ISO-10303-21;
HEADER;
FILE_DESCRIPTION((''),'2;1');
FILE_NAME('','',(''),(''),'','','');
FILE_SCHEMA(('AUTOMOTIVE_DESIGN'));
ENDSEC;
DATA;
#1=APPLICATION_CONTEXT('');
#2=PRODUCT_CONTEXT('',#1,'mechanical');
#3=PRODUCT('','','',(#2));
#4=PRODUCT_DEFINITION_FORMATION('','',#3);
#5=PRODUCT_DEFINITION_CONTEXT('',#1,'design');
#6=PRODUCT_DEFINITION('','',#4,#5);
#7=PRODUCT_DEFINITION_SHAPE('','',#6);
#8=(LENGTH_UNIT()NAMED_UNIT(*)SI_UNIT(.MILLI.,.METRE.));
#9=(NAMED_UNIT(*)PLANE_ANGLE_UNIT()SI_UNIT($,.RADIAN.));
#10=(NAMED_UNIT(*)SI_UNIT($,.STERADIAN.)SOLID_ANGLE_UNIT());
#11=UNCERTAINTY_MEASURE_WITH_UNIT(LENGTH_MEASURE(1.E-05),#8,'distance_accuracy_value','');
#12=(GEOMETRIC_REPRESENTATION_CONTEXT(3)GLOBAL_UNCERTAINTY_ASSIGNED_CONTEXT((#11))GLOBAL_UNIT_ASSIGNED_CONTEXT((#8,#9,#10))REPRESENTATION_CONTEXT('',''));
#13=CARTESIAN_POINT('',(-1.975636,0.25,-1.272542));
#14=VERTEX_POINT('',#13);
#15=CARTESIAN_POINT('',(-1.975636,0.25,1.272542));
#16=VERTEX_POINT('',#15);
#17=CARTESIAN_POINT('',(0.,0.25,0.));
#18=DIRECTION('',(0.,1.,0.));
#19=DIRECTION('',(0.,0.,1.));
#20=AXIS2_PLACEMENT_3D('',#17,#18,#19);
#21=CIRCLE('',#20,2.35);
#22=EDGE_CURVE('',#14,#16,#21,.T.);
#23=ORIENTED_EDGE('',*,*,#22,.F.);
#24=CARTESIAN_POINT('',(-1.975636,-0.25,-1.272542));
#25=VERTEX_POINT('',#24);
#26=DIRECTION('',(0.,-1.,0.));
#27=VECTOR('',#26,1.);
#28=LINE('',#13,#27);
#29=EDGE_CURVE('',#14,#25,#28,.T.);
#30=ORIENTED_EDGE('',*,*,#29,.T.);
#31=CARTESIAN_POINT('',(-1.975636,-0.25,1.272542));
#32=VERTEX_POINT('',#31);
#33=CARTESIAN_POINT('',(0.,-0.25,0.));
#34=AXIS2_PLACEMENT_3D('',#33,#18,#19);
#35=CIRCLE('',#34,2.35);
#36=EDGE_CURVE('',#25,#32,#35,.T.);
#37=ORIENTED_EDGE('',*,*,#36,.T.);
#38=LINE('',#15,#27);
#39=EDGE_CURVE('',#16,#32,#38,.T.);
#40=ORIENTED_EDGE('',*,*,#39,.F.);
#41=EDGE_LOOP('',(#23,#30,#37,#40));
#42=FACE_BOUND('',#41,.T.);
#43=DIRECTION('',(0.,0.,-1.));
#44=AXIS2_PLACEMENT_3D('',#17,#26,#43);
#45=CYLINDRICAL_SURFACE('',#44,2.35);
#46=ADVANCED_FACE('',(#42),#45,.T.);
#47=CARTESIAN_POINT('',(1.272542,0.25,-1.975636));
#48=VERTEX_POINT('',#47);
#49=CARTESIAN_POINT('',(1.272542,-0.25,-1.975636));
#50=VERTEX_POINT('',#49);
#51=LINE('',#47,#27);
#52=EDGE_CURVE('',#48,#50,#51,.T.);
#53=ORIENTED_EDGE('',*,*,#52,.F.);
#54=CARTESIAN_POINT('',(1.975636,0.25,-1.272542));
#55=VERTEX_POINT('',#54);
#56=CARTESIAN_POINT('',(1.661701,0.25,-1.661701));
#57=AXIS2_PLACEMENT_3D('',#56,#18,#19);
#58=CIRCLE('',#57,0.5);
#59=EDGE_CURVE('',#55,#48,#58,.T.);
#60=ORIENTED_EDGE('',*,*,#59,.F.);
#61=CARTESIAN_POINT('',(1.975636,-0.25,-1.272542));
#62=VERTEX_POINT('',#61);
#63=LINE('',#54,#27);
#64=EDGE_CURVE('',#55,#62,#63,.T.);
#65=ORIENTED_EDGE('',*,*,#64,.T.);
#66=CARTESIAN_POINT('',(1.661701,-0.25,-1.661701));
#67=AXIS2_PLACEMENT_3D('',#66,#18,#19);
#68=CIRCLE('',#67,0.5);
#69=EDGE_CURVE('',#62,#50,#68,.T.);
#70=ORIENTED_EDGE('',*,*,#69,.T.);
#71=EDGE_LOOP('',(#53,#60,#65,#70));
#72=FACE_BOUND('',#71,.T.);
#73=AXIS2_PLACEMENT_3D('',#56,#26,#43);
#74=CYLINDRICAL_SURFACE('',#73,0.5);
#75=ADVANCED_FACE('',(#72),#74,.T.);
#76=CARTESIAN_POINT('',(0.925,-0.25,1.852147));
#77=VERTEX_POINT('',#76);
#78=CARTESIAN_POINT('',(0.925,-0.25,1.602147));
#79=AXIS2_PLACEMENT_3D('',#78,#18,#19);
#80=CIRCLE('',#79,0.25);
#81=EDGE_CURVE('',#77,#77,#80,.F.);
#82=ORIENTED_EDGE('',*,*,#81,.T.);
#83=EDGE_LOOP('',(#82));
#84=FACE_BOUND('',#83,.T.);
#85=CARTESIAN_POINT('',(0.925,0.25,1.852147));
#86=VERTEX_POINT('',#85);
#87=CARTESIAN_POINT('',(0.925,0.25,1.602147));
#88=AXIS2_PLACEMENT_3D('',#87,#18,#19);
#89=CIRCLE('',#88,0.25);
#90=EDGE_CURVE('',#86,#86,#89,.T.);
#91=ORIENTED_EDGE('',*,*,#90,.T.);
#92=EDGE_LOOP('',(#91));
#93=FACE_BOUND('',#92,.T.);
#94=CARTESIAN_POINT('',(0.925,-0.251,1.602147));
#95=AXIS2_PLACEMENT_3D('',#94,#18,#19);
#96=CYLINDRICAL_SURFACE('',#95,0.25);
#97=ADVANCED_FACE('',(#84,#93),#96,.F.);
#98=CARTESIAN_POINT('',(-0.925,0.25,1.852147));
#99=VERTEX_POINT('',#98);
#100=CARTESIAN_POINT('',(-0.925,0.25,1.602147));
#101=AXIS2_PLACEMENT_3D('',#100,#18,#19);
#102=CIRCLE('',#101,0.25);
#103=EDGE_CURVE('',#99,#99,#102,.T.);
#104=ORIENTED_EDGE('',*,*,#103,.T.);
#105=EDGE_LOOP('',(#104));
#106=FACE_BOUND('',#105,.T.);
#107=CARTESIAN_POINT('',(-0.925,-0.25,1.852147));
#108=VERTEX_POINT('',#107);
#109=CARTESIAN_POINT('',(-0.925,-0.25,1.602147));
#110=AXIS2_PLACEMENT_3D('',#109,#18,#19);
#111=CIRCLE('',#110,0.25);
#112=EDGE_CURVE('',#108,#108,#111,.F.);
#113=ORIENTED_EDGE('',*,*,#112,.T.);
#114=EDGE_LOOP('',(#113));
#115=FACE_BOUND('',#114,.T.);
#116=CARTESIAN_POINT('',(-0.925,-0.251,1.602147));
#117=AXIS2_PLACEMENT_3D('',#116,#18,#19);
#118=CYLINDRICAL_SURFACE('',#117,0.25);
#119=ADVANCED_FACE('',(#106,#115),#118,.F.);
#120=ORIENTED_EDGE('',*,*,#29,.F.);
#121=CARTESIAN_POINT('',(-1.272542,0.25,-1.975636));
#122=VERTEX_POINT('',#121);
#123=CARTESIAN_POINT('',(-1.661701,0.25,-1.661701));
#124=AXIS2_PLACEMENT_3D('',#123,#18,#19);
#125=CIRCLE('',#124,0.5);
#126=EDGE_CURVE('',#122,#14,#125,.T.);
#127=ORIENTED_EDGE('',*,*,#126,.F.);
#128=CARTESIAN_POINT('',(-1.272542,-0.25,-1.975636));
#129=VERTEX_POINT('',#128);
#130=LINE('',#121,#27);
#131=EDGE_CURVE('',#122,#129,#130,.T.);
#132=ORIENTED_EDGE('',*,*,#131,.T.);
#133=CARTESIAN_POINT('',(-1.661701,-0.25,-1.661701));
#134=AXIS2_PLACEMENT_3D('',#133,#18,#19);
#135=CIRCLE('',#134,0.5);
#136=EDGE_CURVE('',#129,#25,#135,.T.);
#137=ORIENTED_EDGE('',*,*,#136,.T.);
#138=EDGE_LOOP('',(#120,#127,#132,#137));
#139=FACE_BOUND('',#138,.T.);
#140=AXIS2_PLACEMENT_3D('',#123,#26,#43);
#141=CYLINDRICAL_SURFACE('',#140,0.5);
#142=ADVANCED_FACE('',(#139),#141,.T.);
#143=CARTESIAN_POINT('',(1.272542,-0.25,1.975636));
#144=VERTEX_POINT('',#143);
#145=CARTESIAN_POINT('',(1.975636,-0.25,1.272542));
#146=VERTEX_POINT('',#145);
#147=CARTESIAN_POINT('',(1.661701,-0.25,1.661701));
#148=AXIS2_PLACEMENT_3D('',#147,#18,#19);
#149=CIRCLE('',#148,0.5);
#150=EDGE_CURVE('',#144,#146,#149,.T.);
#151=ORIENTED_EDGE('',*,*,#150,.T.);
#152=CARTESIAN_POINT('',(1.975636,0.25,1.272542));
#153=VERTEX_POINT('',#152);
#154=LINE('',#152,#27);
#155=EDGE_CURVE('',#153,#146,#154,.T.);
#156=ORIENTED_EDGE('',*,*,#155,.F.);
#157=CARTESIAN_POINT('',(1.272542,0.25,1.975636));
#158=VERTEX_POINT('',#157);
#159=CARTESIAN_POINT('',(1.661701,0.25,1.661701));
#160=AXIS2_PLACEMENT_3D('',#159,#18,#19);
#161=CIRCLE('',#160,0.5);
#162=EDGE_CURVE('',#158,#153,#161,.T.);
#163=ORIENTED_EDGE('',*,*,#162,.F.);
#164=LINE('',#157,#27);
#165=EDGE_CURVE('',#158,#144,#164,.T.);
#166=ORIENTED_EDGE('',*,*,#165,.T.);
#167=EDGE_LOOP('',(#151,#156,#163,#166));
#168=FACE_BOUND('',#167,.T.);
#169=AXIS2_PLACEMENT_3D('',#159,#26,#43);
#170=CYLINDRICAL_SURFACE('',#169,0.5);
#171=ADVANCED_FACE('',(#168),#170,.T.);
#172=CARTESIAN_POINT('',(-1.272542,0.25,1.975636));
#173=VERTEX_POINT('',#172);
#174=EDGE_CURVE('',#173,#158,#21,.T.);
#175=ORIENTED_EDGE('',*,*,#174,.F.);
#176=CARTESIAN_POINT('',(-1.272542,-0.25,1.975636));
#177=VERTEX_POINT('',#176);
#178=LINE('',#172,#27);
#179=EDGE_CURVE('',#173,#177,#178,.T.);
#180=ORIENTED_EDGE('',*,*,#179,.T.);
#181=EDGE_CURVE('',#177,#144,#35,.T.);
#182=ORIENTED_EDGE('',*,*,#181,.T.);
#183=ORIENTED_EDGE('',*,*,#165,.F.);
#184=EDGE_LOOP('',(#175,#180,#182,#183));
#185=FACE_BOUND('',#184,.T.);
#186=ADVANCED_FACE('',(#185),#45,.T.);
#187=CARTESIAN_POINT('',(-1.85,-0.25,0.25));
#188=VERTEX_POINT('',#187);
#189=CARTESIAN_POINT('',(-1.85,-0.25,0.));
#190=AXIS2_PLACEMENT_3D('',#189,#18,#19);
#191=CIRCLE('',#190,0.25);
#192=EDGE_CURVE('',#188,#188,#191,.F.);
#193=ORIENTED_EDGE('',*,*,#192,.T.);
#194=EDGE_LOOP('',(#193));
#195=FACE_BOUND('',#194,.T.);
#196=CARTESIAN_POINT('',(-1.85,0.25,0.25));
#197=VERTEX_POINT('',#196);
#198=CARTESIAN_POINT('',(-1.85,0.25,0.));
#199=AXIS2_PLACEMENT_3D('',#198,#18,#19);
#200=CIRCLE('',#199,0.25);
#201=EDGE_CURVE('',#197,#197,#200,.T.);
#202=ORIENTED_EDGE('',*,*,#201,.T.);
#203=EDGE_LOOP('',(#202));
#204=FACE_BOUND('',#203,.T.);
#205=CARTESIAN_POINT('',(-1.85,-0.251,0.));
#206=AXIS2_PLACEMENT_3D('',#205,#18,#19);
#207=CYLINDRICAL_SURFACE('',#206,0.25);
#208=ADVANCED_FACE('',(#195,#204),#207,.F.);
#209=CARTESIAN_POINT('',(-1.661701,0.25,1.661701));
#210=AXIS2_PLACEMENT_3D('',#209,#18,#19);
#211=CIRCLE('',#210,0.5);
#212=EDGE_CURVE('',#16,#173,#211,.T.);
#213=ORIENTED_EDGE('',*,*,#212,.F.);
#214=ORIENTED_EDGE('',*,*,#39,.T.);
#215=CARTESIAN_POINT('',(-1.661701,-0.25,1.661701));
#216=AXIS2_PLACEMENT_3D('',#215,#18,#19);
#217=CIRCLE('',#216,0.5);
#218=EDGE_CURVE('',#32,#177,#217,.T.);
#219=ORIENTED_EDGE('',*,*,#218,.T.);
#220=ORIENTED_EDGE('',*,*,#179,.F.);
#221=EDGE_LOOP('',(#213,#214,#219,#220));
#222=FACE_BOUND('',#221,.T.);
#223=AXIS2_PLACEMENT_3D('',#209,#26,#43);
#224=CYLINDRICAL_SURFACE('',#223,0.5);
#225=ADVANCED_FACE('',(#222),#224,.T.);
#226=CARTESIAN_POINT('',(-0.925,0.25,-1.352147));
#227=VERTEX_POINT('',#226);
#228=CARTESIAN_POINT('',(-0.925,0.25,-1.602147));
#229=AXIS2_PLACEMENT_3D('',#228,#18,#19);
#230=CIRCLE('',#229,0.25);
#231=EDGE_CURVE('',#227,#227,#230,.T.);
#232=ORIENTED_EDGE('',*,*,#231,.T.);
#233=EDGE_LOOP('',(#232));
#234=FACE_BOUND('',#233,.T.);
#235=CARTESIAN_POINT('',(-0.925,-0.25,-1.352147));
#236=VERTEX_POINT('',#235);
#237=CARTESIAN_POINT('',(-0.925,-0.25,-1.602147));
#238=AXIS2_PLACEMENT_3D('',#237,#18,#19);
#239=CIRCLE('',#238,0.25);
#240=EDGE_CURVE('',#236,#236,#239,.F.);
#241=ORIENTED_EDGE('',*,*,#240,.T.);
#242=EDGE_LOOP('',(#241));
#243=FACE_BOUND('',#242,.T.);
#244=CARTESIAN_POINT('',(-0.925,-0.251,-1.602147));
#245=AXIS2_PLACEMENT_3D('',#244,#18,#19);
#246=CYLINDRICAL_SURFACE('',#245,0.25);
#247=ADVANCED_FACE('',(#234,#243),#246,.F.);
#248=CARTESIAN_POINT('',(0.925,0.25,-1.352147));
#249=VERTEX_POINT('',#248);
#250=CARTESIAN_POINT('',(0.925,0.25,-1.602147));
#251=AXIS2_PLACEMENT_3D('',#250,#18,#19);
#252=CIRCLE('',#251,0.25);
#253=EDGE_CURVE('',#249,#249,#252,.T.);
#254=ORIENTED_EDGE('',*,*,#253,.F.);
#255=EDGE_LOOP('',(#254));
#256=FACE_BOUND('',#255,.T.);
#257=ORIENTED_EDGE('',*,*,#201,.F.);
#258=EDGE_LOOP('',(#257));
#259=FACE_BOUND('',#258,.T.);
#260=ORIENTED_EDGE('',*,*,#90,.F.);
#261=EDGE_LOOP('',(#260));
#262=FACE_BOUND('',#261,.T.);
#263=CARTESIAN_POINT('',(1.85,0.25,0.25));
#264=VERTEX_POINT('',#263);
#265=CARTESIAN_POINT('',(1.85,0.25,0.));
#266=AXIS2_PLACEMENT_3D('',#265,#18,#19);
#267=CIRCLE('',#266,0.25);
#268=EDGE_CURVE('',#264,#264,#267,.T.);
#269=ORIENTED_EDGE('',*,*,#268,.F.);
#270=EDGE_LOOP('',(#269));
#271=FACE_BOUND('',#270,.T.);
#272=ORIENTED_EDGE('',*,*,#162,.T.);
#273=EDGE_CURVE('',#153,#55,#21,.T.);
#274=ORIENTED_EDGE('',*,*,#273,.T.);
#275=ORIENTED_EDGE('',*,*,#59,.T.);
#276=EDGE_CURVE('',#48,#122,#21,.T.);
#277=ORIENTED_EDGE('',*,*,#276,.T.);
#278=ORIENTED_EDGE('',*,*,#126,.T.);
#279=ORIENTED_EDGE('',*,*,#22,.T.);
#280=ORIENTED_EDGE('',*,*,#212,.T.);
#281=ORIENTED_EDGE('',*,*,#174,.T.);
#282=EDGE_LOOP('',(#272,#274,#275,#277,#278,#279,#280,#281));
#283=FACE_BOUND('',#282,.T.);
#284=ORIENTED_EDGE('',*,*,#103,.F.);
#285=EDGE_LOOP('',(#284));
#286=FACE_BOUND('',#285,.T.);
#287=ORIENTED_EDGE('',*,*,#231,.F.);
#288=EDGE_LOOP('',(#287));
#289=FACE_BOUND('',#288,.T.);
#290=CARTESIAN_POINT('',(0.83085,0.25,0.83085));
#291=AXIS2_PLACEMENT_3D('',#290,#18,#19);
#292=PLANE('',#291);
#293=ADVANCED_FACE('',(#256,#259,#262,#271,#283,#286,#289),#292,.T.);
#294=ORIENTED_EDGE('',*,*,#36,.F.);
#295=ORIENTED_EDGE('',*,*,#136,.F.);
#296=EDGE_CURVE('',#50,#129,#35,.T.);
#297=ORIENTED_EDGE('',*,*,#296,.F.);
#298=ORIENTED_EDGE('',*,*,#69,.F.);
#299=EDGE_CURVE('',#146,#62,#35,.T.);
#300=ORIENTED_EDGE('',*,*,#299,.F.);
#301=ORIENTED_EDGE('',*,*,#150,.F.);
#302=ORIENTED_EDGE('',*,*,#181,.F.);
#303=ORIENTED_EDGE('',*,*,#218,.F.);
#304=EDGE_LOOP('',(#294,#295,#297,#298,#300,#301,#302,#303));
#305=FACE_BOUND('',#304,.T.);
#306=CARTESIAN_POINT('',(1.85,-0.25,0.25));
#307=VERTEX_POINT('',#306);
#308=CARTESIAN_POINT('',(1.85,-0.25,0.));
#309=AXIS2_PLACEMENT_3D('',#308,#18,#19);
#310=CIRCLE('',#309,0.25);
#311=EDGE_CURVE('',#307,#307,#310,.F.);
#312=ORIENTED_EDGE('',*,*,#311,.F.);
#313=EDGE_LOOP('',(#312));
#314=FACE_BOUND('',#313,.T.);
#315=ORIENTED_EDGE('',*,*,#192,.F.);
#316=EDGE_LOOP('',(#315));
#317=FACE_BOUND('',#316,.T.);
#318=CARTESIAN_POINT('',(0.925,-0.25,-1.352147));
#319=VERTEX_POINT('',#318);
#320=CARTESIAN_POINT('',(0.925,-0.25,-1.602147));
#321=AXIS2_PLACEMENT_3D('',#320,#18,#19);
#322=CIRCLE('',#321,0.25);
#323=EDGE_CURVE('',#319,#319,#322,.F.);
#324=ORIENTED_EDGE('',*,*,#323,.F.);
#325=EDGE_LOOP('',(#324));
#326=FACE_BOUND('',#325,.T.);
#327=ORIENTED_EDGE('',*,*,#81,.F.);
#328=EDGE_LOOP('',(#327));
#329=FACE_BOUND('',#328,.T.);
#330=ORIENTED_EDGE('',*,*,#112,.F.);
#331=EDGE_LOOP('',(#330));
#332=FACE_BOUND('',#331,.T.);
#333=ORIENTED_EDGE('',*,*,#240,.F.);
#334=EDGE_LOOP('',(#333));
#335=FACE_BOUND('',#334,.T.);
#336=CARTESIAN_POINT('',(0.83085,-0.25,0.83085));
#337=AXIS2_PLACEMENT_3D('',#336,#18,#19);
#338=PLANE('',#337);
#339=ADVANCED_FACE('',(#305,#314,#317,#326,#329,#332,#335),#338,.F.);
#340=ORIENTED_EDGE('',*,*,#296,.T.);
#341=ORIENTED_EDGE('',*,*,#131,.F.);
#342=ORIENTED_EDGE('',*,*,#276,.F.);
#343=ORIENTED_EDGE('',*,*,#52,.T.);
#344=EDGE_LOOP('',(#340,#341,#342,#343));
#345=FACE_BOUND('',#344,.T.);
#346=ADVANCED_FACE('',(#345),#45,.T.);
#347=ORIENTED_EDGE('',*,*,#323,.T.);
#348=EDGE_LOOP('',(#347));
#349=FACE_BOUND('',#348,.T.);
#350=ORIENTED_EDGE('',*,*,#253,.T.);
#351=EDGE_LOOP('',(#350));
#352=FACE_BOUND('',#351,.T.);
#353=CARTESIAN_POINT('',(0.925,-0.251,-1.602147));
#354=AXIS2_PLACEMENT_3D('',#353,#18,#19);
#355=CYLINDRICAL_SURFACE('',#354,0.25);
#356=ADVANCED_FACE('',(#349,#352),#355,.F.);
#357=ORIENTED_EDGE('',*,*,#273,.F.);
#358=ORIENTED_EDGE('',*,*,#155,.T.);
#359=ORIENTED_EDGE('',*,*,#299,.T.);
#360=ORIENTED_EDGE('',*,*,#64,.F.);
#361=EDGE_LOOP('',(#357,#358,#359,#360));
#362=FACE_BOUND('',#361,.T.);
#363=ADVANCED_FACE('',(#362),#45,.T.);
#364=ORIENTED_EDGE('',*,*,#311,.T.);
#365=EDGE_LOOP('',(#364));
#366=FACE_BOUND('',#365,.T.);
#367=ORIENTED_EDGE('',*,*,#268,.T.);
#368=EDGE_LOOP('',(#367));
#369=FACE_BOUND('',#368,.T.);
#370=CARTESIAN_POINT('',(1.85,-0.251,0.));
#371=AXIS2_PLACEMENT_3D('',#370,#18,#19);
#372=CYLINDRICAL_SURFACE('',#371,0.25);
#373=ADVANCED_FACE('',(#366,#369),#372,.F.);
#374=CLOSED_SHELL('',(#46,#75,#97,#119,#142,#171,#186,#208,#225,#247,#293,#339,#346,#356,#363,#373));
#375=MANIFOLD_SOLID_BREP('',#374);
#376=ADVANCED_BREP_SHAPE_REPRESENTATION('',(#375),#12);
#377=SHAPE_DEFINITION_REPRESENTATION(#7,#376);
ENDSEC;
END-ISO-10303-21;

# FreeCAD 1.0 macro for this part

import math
import FreeCAD as App
import Part
import Sketcher
from FreeCAD import Vector
Q = App.Units.Quantity

doc = App.newDocument("Part")
body = doc.addObject("PartDesign::Body", "Body")

sketch1 = doc.addObject("Sketcher::SketchObject", "Sketch")
body.addObject(sketch1)
sketch1.AttachmentSupport = (doc.XZ_Plane, [""])
sketch1.MapMode = "FlatFace"
sketch1.addGeometry(Part.ArcOfCircle(Part.Circle(Vector(0, 0, 0), Vector(0, 0, 1), 2.4), math.radians(147), math.radians(213)), False)
sketch1.addGeometry(Part.ArcOfCircle(Part.Circle(Vector(-1.7, 1.7, 0), Vector(0, 0, 1), 0.5), math.radians(39), math.radians(231)), False)
sketch1.addGeometry(Part.ArcOfCircle(Part.Circle(Vector(0, 0, 0), Vector(0, 0, 1), 2.4), math.radians(57), math.radians(123)), False)
sketch1.addGeometry(Part.ArcOfCircle(Part.Circle(Vector(1.7, 1.7, 0), Vector(0, 0, 1), 0.5), math.radians(-51), math.radians(141)), False)
sketch1.addGeometry(Part.ArcOfCircle(Part.Circle(Vector(0, 0, 0), Vector(0, 0, 1), 2.4), math.radians(-33), math.radians(33)), False)
sketch1.addGeometry(Part.ArcOfCircle(Part.Circle(Vector(1.7, -1.7, 0), Vector(0, 0, 1), 0.5), math.radians(-141), math.radians(51)), False)
sketch1.addGeometry(Part.ArcOfCircle(Part.Circle(Vector(0, 0, 0), Vector(0, 0, 1), 2.4), math.radians(-123), math.radians(-57)), False)
sketch1.addGeometry(Part.ArcOfCircle(Part.Circle(Vector(-1.7, -1.7, 0), Vector(0, 0, 1), 0.5), math.radians(129), math.radians(321)), False)
sketch1.addConstraint(Sketcher.Constraint("Coincident", 0, 1, 1, 2))
sketch1.addConstraint(Sketcher.Constraint("Coincident", 1, 1, 2, 2))
sketch1.addConstraint(Sketcher.Constraint("Coincident", 2, 1, 3, 2))
sketch1.addConstraint(Sketcher.Constraint("Coincident", 3, 1, 4, 2))
sketch1.addConstraint(Sketcher.Constraint("Coincident", 4, 1, 5, 2))
sketch1.addConstraint(Sketcher.Constraint("Coincident", 5, 1, 6, 2))
sketch1.addConstraint(Sketcher.Constraint("Coincident", 6, 1, 7, 2))
sketch1.addConstraint(Sketcher.Constraint("Coincident", 7, 1, 0, 2))
sketch1.addConstraint(Sketcher.Constraint("Coincident", 0, 3, -1, 1))
sketch1.addConstraint(Sketcher.Constraint("Coincident", 2, 3, -1, 1))
sketch1.addConstraint(Sketcher.Constraint("Coincident", 4, 3, -1, 1))
sketch1.addConstraint(Sketcher.Constraint("Coincident", 6, 3, -1, 1))
sketch1.addConstraint(Sketcher.Constraint("Equal", 0, 2))
sketch1.addConstraint(Sketcher.Constraint("Equal", 1, 3))
sketch1.addConstraint(Sketcher.Constraint("Equal", 2, 4))
sketch1.addConstraint(Sketcher.Constraint("Equal", 3, 5))
sketch1.addConstraint(Sketcher.Constraint("Equal", 4, 6))
sketch1.addConstraint(Sketcher.Constraint("Equal", 5, 7))
sketch1.addConstraint(Sketcher.Constraint("Symmetric", 1, 3, 5, 3, -1, 1))
sketch1.addConstraint(Sketcher.Constraint("Symmetric", 3, 3, 7, 3, -1, 1))
sketch1.addConstraint(Sketcher.Constraint("Symmetric", 1, 3, 3, 3, -2))
sketch1.addConstraint(Sketcher.Constraint("Radius", 1, Q("0.5 mm")))
sketch1.addConstraint(Sketcher.Constraint("Radius", 0, Q("2.35 mm")))
sketch1.addConstraint(Sketcher.Constraint("DistanceX", 1, 3, -1, 1, Q("1.661701 mm")))
sketch1.addConstraint(Sketcher.Constraint("DistanceY", -1, 1, 1, 3, Q("1.661701 mm")))
pad1 = doc.addObject("PartDesign::Pad", "Pad")
body.addObject(pad1)
pad1.Profile = sketch1
pad1.Length = 0.5
pad1.Midplane = True

sketch2 = doc.addObject("Sketcher::SketchObject", "Sketch001")
body.addObject(sketch2)
sketch2.AttachmentSupport = (doc.XZ_Plane, [""])
sketch2.MapMode = "FlatFace"
sketch2.AttachmentOffset = App.Placement(Vector(0, 0, -0.25), App.Rotation())
sketch2.addGeometry(Part.Circle(Vector(-1.85, 0, 0), Vector(0, 0, 1), 0.25), False)
sketch2.addConstraint(Sketcher.Constraint("PointOnObject", 0, 3, -1))
sketch2.addConstraint(Sketcher.Constraint("Diameter", 0, Q("0.5 mm")))
sketch2.addConstraint(Sketcher.Constraint("DistanceX", 0, 3, -1, 1, Q("1.85 mm")))
pocket1 = doc.addObject("PartDesign::Pocket", "Pocket")
body.addObject(pocket1)
pocket1.Profile = sketch2
pocket1.Type = "UpToFirst"
pocket1.Reversed = True

sketch3 = doc.addObject("Sketcher::SketchObject", "Sketch002")
body.addObject(sketch3)
sketch3.AttachmentSupport = (doc.XZ_Plane, [""])
sketch3.MapMode = "FlatFace"
sketch3.AttachmentOffset = App.Placement(Vector(0, 0, -0.25), App.Rotation())
sketch3.addGeometry(Part.Circle(Vector(-0.93, -1.6, 0), Vector(0, 0, 1), 0.25), False)
sketch3.addConstraint(Sketcher.Constraint("Diameter", 0, Q("0.5 mm")))
sketch3.addConstraint(Sketcher.Constraint("DistanceX", 0, 3, -1, 1, Q("0.925 mm")))
sketch3.addConstraint(Sketcher.Constraint("DistanceY", 0, 3, -1, 1, Q("1.602147 mm")))
pocket2 = doc.addObject("PartDesign::Pocket", "Pocket001")
body.addObject(pocket2)
pocket2.Profile = sketch3
pocket2.Type = "UpToFirst"
pocket2.Reversed = True

sketch4 = doc.addObject("Sketcher::SketchObject", "Sketch003")
body.addObject(sketch4)
sketch4.AttachmentSupport = (doc.XZ_Plane, [""])
sketch4.MapMode = "FlatFace"
sketch4.AttachmentOffset = App.Placement(Vector(0, 0, -0.25), App.Rotation())
sketch4.addGeometry(Part.Circle(Vector(0.93, -1.6, 0), Vector(0, 0, 1), 0.25), False)
sketch4.addConstraint(Sketcher.Constraint("Diameter", 0, Q("0.5 mm")))
sketch4.addConstraint(Sketcher.Constraint("DistanceX", -1, 1, 0, 3, Q("0.925 mm")))
sketch4.addConstraint(Sketcher.Constraint("DistanceY", 0, 3, -1, 1, Q("1.602147 mm")))
pocket3 = doc.addObject("PartDesign::Pocket", "Pocket002")
body.addObject(pocket3)
pocket3.Profile = sketch4
pocket3.Type = "UpToFirst"
pocket3.Reversed = True

sketch5 = doc.addObject("Sketcher::SketchObject", "Sketch004")
body.addObject(sketch5)
sketch5.AttachmentSupport = (doc.XZ_Plane, [""])
sketch5.MapMode = "FlatFace"
sketch5.AttachmentOffset = App.Placement(Vector(0, 0, -0.25), App.Rotation())
sketch5.addGeometry(Part.Circle(Vector(1.85, 0, 0), Vector(0, 0, 1), 0.25), False)
sketch5.addConstraint(Sketcher.Constraint("PointOnObject", 0, 3, -1))
sketch5.addConstraint(Sketcher.Constraint("Diameter", 0, Q("0.5 mm")))
sketch5.addConstraint(Sketcher.Constraint("DistanceX", -1, 1, 0, 3, Q("1.85 mm")))
pocket4 = doc.addObject("PartDesign::Pocket", "Pocket003")
body.addObject(pocket4)
pocket4.Profile = sketch5
pocket4.Type = "UpToFirst"
pocket4.Reversed = True

sketch6 = doc.addObject("Sketcher::SketchObject", "Sketch005")
body.addObject(sketch6)
sketch6.AttachmentSupport = (doc.XZ_Plane, [""])
sketch6.MapMode = "FlatFace"
sketch6.AttachmentOffset = App.Placement(Vector(0, 0, -0.25), App.Rotation())
sketch6.addGeometry(Part.Circle(Vector(0.93, 1.6, 0), Vector(0, 0, 1), 0.25), False)
sketch6.addConstraint(Sketcher.Constraint("Diameter", 0, Q("0.5 mm")))
sketch6.addConstraint(Sketcher.Constraint("DistanceX", -1, 1, 0, 3, Q("0.925 mm")))
sketch6.addConstraint(Sketcher.Constraint("DistanceY", -1, 1, 0, 3, Q("1.602147 mm")))
pocket5 = doc.addObject("PartDesign::Pocket", "Pocket004")
body.addObject(pocket5)
pocket5.Profile = sketch6
pocket5.Type = "UpToFirst"
pocket5.Reversed = True

sketch7 = doc.addObject("Sketcher::SketchObject", "Sketch006")
body.addObject(sketch7)
sketch7.AttachmentSupport = (doc.XZ_Plane, [""])
sketch7.MapMode = "FlatFace"
sketch7.AttachmentOffset = App.Placement(Vector(0, 0, -0.25), App.Rotation())
sketch7.addGeometry(Part.Circle(Vector(-0.93, 1.6, 0), Vector(0, 0, 1), 0.25), False)
sketch7.addConstraint(Sketcher.Constraint("Diameter", 0, Q("0.5 mm")))
sketch7.addConstraint(Sketcher.Constraint("DistanceX", 0, 3, -1, 1, Q("0.925 mm")))
sketch7.addConstraint(Sketcher.Constraint("DistanceY", -1, 1, 0, 3, Q("1.602147 mm")))
pocket6 = doc.addObject("PartDesign::Pocket", "Pocket005")
body.addObject(pocket6)
pocket6.Profile = sketch7
pocket6.Type = "UpToFirst"
pocket6.Reversed = True

doc.recompute()
